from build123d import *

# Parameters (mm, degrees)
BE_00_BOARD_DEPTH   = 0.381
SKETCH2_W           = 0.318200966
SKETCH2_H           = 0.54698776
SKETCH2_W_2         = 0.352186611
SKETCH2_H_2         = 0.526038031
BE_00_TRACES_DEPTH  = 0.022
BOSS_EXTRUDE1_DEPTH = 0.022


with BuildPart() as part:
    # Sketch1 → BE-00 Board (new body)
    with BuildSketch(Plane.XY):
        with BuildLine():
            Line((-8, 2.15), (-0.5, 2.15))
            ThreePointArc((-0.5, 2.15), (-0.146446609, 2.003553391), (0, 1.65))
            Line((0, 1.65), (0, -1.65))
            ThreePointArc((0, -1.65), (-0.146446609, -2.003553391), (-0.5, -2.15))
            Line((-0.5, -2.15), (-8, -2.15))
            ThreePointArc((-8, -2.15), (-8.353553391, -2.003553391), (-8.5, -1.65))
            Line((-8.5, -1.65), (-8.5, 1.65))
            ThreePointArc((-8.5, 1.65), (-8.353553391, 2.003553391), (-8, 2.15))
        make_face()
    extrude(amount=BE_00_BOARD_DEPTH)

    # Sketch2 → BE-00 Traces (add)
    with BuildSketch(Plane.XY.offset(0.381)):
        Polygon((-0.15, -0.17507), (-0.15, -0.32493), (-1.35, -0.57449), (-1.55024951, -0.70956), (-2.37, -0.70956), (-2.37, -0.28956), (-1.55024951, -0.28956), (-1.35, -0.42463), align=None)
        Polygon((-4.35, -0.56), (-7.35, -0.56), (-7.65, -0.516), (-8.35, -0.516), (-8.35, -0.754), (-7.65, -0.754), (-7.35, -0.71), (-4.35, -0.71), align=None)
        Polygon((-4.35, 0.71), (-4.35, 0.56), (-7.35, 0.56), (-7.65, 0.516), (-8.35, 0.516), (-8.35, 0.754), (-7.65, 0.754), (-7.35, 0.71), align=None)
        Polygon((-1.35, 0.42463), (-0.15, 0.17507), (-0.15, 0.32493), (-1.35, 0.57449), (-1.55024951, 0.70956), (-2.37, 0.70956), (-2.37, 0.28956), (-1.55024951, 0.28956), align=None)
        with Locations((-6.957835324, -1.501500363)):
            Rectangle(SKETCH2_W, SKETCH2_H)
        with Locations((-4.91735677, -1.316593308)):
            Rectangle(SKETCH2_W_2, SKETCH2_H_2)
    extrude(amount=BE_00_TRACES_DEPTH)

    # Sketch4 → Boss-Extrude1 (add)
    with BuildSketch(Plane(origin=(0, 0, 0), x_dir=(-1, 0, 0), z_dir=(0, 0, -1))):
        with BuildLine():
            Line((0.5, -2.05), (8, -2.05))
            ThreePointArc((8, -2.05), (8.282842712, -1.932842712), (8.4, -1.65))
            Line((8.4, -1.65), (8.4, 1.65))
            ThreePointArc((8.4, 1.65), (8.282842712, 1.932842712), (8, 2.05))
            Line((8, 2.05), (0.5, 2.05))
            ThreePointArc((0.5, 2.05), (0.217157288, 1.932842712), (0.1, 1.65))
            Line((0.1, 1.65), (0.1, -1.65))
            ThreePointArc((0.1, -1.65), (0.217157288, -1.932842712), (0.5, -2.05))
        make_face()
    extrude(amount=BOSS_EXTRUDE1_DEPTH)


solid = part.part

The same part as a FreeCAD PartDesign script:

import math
import FreeCAD as App
import Part
import Sketcher
from FreeCAD import Vector
Q = App.Units.Quantity

doc = App.newDocument("Part")
body = doc.addObject("PartDesign::Body", "Body")

sketch1 = body.newObject("Sketcher::SketchObject", "Sketch")
sketch1.AttachmentSupport = (doc.getObject("XY_Plane"), [""])
sketch1.MapMode = "FlatFace"
sketch1.addGeometry([
    Part.LineSegment(Vector(-0.5, 2.15, 0), Vector(-8, 2.15, 0)),
    Part.ArcOfCircle(Part.Circle(Vector(-8, 1.65, 0), Vector(0, 0, 1), 0.5), math.radians(90), math.radians(180)),
    Part.LineSegment(Vector(-8.5, 1.65, 0), Vector(-8.5, -1.65, 0)),
    Part.ArcOfCircle(Part.Circle(Vector(-8, -1.65, 0), Vector(0, 0, 1), 0.5), math.radians(180), math.radians(270)),
    Part.LineSegment(Vector(-8, -2.15, 0), Vector(-0.5, -2.15, 0)),
    Part.ArcOfCircle(Part.Circle(Vector(-0.5, -1.65, 0), Vector(0, 0, 1), 0.5), math.radians(-90), math.radians(0)),
    Part.LineSegment(Vector(0, -1.65, 0), Vector(0, 1.65, 0)),
    Part.ArcOfCircle(Part.Circle(Vector(-0.5, 1.65, 0), Vector(0, 0, 1), 0.5), math.radians(0), math.radians(90)),
], False)
sketch1.addConstraint([
    Sketcher.Constraint("Tangent", 0, 2, 1, 1),
    Sketcher.Constraint("Tangent", 1, 2, 2, 1),
    Sketcher.Constraint("Tangent", 2, 2, 3, 1),
    Sketcher.Constraint("Tangent", 3, 2, 4, 1),
    Sketcher.Constraint("Tangent", 4, 2, 5, 1),
    Sketcher.Constraint("Tangent", 5, 2, 6, 1),
    Sketcher.Constraint("Tangent", 6, 2, 7, 1),
    Sketcher.Constraint("Tangent", 7, 2, 0, 1),
    Sketcher.Constraint("Horizontal", 0),
    Sketcher.Constraint("Vertical", 2),
    Sketcher.Constraint("Horizontal", 4),
    Sketcher.Constraint("Vertical", 6),
    Sketcher.Constraint("Equal", 1, 3),
    Sketcher.Constraint("Equal", 3, 5),
    Sketcher.Constraint("Equal", 5, 7),
    Sketcher.Constraint("Symmetric", 5, 2, 6, 2, -1, 1),
    Sketcher.Constraint("Radius", 1, 0.5),
    Sketcher.Constraint("DistanceX", 0, 2, 0, 1, 7.5),
    Sketcher.Constraint("DistanceY", 2, 2, 2, 1, 3.3),
])
pad1 = body.newObject("PartDesign::Pad", "Pad")
pad1.Profile = sketch1
pad1.Length = 0.381

sketch2 = body.newObject("Sketcher::SketchObject", "Sketch001")
sketch2.AttachmentSupport = (doc.getObject("XY_Plane"), [""])
sketch2.MapMode = "FlatFace"
sketch2.AttachmentOffset = App.Placement(Vector(0, 0, 0.381), App.Rotation())
sketch2.addGeometry([
    Part.LineSegment(Vector(-0.15, -0.32, 0), Vector(-0.15, -0.18, 0)),
    Part.LineSegment(Vector(-0.15, -0.18, 0), Vector(-1.35, -0.42, 0)),
    Part.LineSegment(Vector(-1.35, -0.42, 0), Vector(-1.55, -0.29, 0)),
    Part.LineSegment(Vector(-1.55, -0.29, 0), Vector(-2.37, -0.29, 0)),
    Part.LineSegment(Vector(-2.37, -0.29, 0), Vector(-2.37, -0.71, 0)),
    Part.LineSegment(Vector(-2.37, -0.71, 0), Vector(-1.55, -0.71, 0)),
    Part.LineSegment(Vector(-1.55, -0.71, 0), Vector(-1.35, -0.57, 0)),
    Part.LineSegment(Vector(-1.35, -0.57, 0), Vector(-0.15, -0.32, 0)),
    Part.LineSegment(Vector(-4.35, -0.56, 0), Vector(-7.35, -0.56, 0)),
    Part.LineSegment(Vector(-7.35, -0.56, 0), Vector(-7.65, -0.52, 0)),
    Part.LineSegment(Vector(-7.65, -0.52, 0), Vector(-8.35, -0.52, 0)),
    Part.LineSegment(Vector(-8.35, -0.52, 0), Vector(-8.35, -0.75, 0)),
    Part.LineSegment(Vector(-8.35, -0.75, 0), Vector(-7.65, -0.75, 0)),
    Part.LineSegment(Vector(-7.65, -0.75, 0), Vector(-7.35, -0.71, 0)),
    Part.LineSegment(Vector(-7.35, -0.71, 0), Vector(-4.35, -0.71, 0)),
    Part.LineSegment(Vector(-4.35, -0.71, 0), Vector(-4.35, -0.56, 0)),
    Part.LineSegment(Vector(-4.35, 0.56, 0), Vector(-4.35, 0.71, 0)),
    Part.LineSegment(Vector(-4.35, 0.71, 0), Vector(-7.35, 0.71, 0)),
    Part.LineSegment(Vector(-7.35, 0.71, 0), Vector(-7.65, 0.75, 0)),
    Part.LineSegment(Vector(-7.65, 0.75, 0), Vector(-8.35, 0.75, 0)),
    Part.LineSegment(Vector(-8.35, 0.75, 0), Vector(-8.35, 0.52, 0)),
    Part.LineSegment(Vector(-8.35, 0.52, 0), Vector(-7.65, 0.52, 0)),
    Part.LineSegment(Vector(-7.65, 0.52, 0), Vector(-7.35, 0.56, 0)),
    Part.LineSegment(Vector(-7.35, 0.56, 0), Vector(-4.35, 0.56, 0)),
    Part.LineSegment(Vector(-1.35, 0.42, 0), Vector(-0.15, 0.18, 0)),
    Part.LineSegment(Vector(-0.15, 0.18, 0), Vector(-0.15, 0.32, 0)),
    Part.LineSegment(Vector(-0.15, 0.32, 0), Vector(-1.35, 0.57, 0)),
    Part.LineSegment(Vector(-1.35, 0.57, 0), Vector(-1.55, 0.71, 0)),
    Part.LineSegment(Vector(-1.55, 0.71, 0), Vector(-2.37, 0.71, 0)),
    Part.LineSegment(Vector(-2.37, 0.71, 0), Vector(-2.37, 0.29, 0)),
    Part.LineSegment(Vector(-2.37, 0.29, 0), Vector(-1.55, 0.29, 0)),
    Part.LineSegment(Vector(-1.55, 0.29, 0), Vector(-1.35, 0.42, 0)),
    Part.LineSegment(Vector(-7.12, -1.23, 0), Vector(-7.12, -1.77, 0)),
    Part.LineSegment(Vector(-7.12, -1.77, 0), Vector(-6.8, -1.77, 0)),
    Part.LineSegment(Vector(-6.8, -1.77, 0), Vector(-6.8, -1.23, 0)),
    Part.LineSegment(Vector(-6.8, -1.23, 0), Vector(-7.12, -1.23, 0)),
    Part.LineSegment(Vector(-5.09, -1.05, 0), Vector(-5.09, -1.58, 0)),
    Part.LineSegment(Vector(-5.09, -1.58, 0), Vector(-4.74, -1.58, 0)),
    Part.LineSegment(Vector(-4.74, -1.58, 0), Vector(-4.74, -1.05, 0)),
    Part.LineSegment(Vector(-4.74, -1.05, 0), Vector(-5.09, -1.05, 0)),
], False)
sketch2.addConstraint([
    Sketcher.Constraint("Coincident", 0, 2, 1, 1),
    Sketcher.Constraint("Coincident", 1, 2, 2, 1),
    Sketcher.Constraint("Coincident", 2, 2, 3, 1),
    Sketcher.Constraint("Coincident", 3, 2, 4, 1),
    Sketcher.Constraint("Coincident", 4, 2, 5, 1),
    Sketcher.Constraint("Coincident", 5, 2, 6, 1),
    Sketcher.Constraint("Coincident", 6, 2, 7, 1),
    Sketcher.Constraint("Coincident", 7, 2, 0, 1),
    Sketcher.Constraint("Coincident", 8, 2, 9, 1),
    Sketcher.Constraint("Coincident", 9, 2, 10, 1),
    Sketcher.Constraint("Coincident", 10, 2, 11, 1),
    Sketcher.Constraint("Coincident", 11, 2, 12, 1),
    Sketcher.Constraint("Coincident", 12, 2, 13, 1),
    Sketcher.Constraint("Coincident", 13, 2, 14, 1),
    Sketcher.Constraint("Coincident", 14, 2, 15, 1),
    Sketcher.Constraint("Coincident", 15, 2, 8, 1),
    Sketcher.Constraint("Coincident", 16, 2, 17, 1),
    Sketcher.Constraint("Coincident", 17, 2, 18, 1),
    Sketcher.Constraint("Coincident", 18, 2, 19, 1),
    Sketcher.Constraint("Coincident", 19, 2, 20, 1),
    Sketcher.Constraint("Coincident", 20, 2, 21, 1),
    Sketcher.Constraint("Coincident", 21, 2, 22, 1),
    Sketcher.Constraint("Coincident", 22, 2, 23, 1),
    Sketcher.Constraint("Coincident", 23, 2, 16, 1),
    Sketcher.Constraint("Coincident", 24, 2, 25, 1),
    Sketcher.Constraint("Coincident", 25, 2, 26, 1),
    Sketcher.Constraint("Coincident", 26, 2, 27, 1),
    Sketcher.Constraint("Coincident", 27, 2, 28, 1),
    Sketcher.Constraint("Coincident", 28, 2, 29, 1),
    Sketcher.Constraint("Coincident", 29, 2, 30, 1),
    Sketcher.Constraint("Coincident", 30, 2, 31, 1),
    Sketcher.Constraint("Coincident", 31, 2, 24, 1),
    Sketcher.Constraint("Coincident", 32, 2, 33, 1),
    Sketcher.Constraint("Coincident", 33, 2, 34, 1),
    Sketcher.Constraint("Coincident", 34, 2, 35, 1),
    Sketcher.Constraint("Coincident", 35, 2, 32, 1),
    Sketcher.Constraint("Coincident", 36, 2, 37, 1),
    Sketcher.Constraint("Coincident", 37, 2, 38, 1),
    Sketcher.Constraint("Coincident", 38, 2, 39, 1),
    Sketcher.Constraint("Coincident", 39, 2, 36, 1),
    Sketcher.Constraint("Vertical", 0),
    Sketcher.Constraint("Horizontal", 3),
    Sketcher.Constraint("Vertical", 4),
    Sketcher.Constraint("Horizontal", 5),
    Sketcher.Constraint("Horizontal", 8),
    Sketcher.Constraint("Horizontal", 10),
    Sketcher.Constraint("Vertical", 11),
    Sketcher.Constraint("Horizontal", 12),
    Sketcher.Constraint("Horizontal", 14),
    Sketcher.Constraint("Vertical", 15),
    Sketcher.Constraint("Vertical", 16),
    Sketcher.Constraint("Horizontal", 17),
    Sketcher.Constraint("Horizontal", 19),
    Sketcher.Constraint("Vertical", 20),
    Sketcher.Constraint("Horizontal", 21),
    Sketcher.Constraint("Horizontal", 23),
    Sketcher.Constraint("Vertical", 25),
    Sketcher.Constraint("Horizontal", 28),
    Sketcher.Constraint("Vertical", 29),
    Sketcher.Constraint("Horizontal", 30),
    Sketcher.Constraint("Vertical", 32),
    Sketcher.Constraint("Horizontal", 33),
    Sketcher.Constraint("Vertical", 34),
    Sketcher.Constraint("Horizontal", 35),
    Sketcher.Constraint("Vertical", 36),
    Sketcher.Constraint("Horizontal", 37),
    Sketcher.Constraint("Vertical", 38),
    Sketcher.Constraint("Horizontal", 39),
    Sketcher.Constraint("Symmetric", 14, 2, 16, 2, -1),
    Sketcher.Constraint("Symmetric", 12, 2, 18, 2, -1),
    Sketcher.Constraint("Symmetric", 10, 2, 20, 2, -1),
    Sketcher.Constraint("Symmetric", 8, 2, 22, 2, -1),
    Sketcher.Constraint("Symmetric", 0, 2, 24, 2, -1),
    Sketcher.Constraint("Symmetric", 6, 2, 26, 2, -1),
    Sketcher.Constraint("Symmetric", 5, 2, 27, 2, -1),
    Sketcher.Constraint("Symmetric", 3, 2, 29, 2, -1),
    Sketcher.Constraint("Symmetric", 1, 2, 31, 2, -1),
    Sketcher.Constraint("Parallel", 1, 7),
    Sketcher.Constraint("Parallel", 9, 18),
    Sketcher.Constraint("Parallel", 13, 22),
    Sketcher.Constraint("Parallel", 24, 26),
    Sketcher.Constraint("Parallel", 2, 27),
    Sketcher.Constraint("Parallel", 6, 31),
    Sketcher.Constraint("Vertical", 2, 2, 5, 2),
    Sketcher.Constraint("Vertical", 1, 2, 6, 2),
    Sketcher.Constraint("Vertical", 9, 2, 12, 2),
    Sketcher.Constraint("Vertical", 8, 2, 13, 2),
    Sketcher.Constraint("Vertical", 13, 2, 17, 2),
    Sketcher.Constraint("DistanceX", 8, 2, 8, 1, 3.0),
    Sketcher.Constraint("Angle", 2, Q("146 deg")),
    Sketcher.Constraint("DistanceX", 10, 2, 10, 1, 0.7),
    Sketcher.Constraint("DistanceX", 8, 2, 6, 2, 6.0),
    Sketcher.Constraint("DistanceX", 10, 2, 8, 2, 1.0),
    Sketcher.Constraint("DistanceY", 4, 2, 4, 1, 0.42),
    Sketcher.Constraint("DistanceY", 15, 1, 15, 2, 0.15),
    Sketcher.Constraint("DistanceX", 1, 2, 0, 2, 1.2),
    Sketcher.Constraint("DistanceY", 7, 2, 24, 2, 0.5),
    Sketcher.Constraint("DistanceY", 11, 2, 11, 1, 0.238),
    Sketcher.Constraint("DistanceX", 0, 2, -1, 1, 0.15),
    Sketcher.Constraint("DistanceX", 3, 2, -1, 1, 2.37),
    Sketcher.Constraint("DistanceY", 8, 2, -1, 1, 0.56),
    Sketcher.Constraint("DistanceX", 33, 1, 33, 2, 0.318201),
    Sketcher.Constraint("DistanceX", 3, 2, 3, 1, 0.81975),
    Sketcher.Constraint("DistanceY", 36, 2, 36, 1, 0.526038),
    Sketcher.Constraint("DistanceY", 1, 2, 7, 2, 0.0997),
    Sketcher.Constraint("DistanceX", 37, 1, 37, 2, 0.352187),
    Sketcher.Constraint("DistanceY", 32, 2, 32, 1, 0.546988),
    Sketcher.Constraint("DistanceX", 36, 2, -1, 1, 5.09345),
    Sketcher.Constraint("DistanceY", 33, 2, 36, 2, 0.195382),
    Sketcher.Constraint("DistanceX", 33, 2, 37, 2, 2.057471),
    Sketcher.Constraint("DistanceY", 32, 2, -1, 1, 1.774994),
])
pad2 = body.newObject("PartDesign::Pad", "Pad001")
pad2.Profile = sketch2
pad2.Length = 0.022

sketch3 = body.newObject("Sketcher::SketchObject", "Sketch002")
sketch3.AttachmentSupport = (doc.getObject("XY_Plane"), [""])
sketch3.MapMode = "FlatFace"
sketch3.addGeometry([
    Part.LineSegment(Vector(-0.5, -2.05, 0), Vector(-8, -2.05, 0)),
    Part.ArcOfCircle(Part.Circle(Vector(-8, -1.65, 0), Vector(0, 0, 1), 0.4), math.radians(-180), math.radians(-90)),
    Part.LineSegment(Vector(-8.4, -1.65, 0), Vector(-8.4, 1.65, 0)),
    Part.ArcOfCircle(Part.Circle(Vector(-8, 1.65, 0), Vector(0, 0, 1), 0.4), math.radians(90), math.radians(180)),
    Part.LineSegment(Vector(-8, 2.05, 0), Vector(-0.5, 2.05, 0)),
    Part.ArcOfCircle(Part.Circle(Vector(-0.5, 1.65, 0), Vector(0, 0, 1), 0.4), math.radians(0), math.radians(90)),
    Part.LineSegment(Vector(-0.1, 1.65, 0), Vector(-0.1, -1.65, 0)),
    Part.ArcOfCircle(Part.Circle(Vector(-0.5, -1.65, 0), Vector(0, 0, 1), 0.4), math.radians(-90), math.radians(0)),
], False)
sketch3.addConstraint([
    Sketcher.Constraint("Tangent", 0, 2, 1, 2),
    Sketcher.Constraint("Tangent", 1, 1, 2, 1),
    Sketcher.Constraint("Tangent", 2, 2, 3, 2),
    Sketcher.Constraint("Tangent", 3, 1, 4, 1),
    Sketcher.Constraint("Tangent", 4, 2, 5, 2),
    Sketcher.Constraint("Tangent", 5, 1, 6, 1),
    Sketcher.Constraint("Tangent", 6, 2, 7, 2),
    Sketcher.Constraint("Tangent", 7, 1, 0, 1),
    Sketcher.Constraint("Horizontal", 0),
    Sketcher.Constraint("Vertical", 2),
    Sketcher.Constraint("Horizontal", 4),
    Sketcher.Constraint("Vertical", 6),
    Sketcher.Constraint("Equal", 1, 3),
    Sketcher.Constraint("Equal", 3, 5),
    Sketcher.Constraint("Equal", 5, 7),
    Sketcher.Constraint("Radius", 1, 0.4),
    Sketcher.Constraint("DistanceX", 0, 2, 0, 1, 7.5),
    Sketcher.Constraint("DistanceY", 2, 1, 2, 2, 3.3),
    Sketcher.Constraint("DistanceX", 1, 3, -1, 1, 8.0),
    Sketcher.Constraint("DistanceY", 1, 3, -1, 1, 1.65),
])
pad3 = body.newObject("PartDesign::Pad", "Pad002")
pad3.Profile = sketch3
pad3.Length = 0.022
pad3.Reversed = True

doc.recompute()
